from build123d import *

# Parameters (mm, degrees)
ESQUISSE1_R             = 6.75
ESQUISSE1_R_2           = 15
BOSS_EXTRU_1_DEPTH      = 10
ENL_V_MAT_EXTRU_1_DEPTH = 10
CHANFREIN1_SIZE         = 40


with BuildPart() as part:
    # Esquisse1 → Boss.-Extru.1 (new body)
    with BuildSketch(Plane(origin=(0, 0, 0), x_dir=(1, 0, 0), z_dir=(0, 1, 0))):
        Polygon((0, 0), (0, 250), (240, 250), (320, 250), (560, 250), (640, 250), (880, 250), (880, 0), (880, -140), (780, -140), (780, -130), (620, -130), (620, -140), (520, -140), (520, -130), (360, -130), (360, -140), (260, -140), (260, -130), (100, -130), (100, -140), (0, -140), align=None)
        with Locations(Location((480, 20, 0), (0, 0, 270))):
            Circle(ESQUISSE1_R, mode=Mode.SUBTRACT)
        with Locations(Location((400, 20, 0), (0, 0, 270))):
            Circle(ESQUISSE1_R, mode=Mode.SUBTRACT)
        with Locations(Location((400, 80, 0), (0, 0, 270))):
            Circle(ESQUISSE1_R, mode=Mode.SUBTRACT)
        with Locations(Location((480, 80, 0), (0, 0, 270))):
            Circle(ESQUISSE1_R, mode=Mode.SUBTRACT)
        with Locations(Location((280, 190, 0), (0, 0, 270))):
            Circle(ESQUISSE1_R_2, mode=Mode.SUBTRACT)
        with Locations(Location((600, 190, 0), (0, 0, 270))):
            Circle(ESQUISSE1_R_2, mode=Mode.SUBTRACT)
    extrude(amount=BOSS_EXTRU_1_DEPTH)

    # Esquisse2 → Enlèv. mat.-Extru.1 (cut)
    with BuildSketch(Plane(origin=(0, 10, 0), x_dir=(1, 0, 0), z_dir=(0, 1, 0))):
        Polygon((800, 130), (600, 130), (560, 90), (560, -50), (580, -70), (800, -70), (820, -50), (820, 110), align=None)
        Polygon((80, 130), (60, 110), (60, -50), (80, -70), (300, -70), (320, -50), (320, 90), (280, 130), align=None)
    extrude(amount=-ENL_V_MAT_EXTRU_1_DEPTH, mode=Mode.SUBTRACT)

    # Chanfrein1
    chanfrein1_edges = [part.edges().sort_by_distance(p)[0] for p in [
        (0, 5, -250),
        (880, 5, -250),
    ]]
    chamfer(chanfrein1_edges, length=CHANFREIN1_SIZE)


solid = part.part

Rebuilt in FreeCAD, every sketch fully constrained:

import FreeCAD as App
import Part
import Sketcher


def edges_at(feature, points):
    """Names of the edges that pass closest to the given points."""
    edges = feature.Shape.Edges
    near = lambda p: min(range(len(edges)), key=lambda i: edges[i].distToShape(Part.Vertex(*p))[0])
    return sorted({f"Edge{near(p) + 1}" for p in points})


def add_polygon(sketch, points):
    """Adds a closed chain of lines whose ends are joined by coincident constraints."""
    first, n = sketch.GeometryCount, len(points)
    for a, b in zip(points, points[1:] + points[:1]):
        sketch.addGeometry(Part.LineSegment(App.Vector(*a, 0), App.Vector(*b, 0)), False)
    for i in range(n):
        sketch.addConstraint(Sketcher.Constraint("Coincident", first + i, 2, first + (i + 1) % n, 1))

doc = App.newDocument("Part")
body = doc.addObject("PartDesign::Body", "Body")

# Sketch on XZ plane
sketch1 = body.newObject("Sketcher::SketchObject", "Sketch")
sketch1.AttachmentSupport = (doc.getObject("XZ_Plane"), [""])
sketch1.MapMode = "FlatFace"
add_polygon(sketch1, [(0, -250), (0, 140), (100, 140), (100, 130), (260, 130), (260, 140), (360, 140), (360, 130), (520, 130), (520, 140), (620, 140), (620, 130), (780, 130), (780, 140), (880, 140), (880, -250)])  # lines 0-15
sketch1.addGeometry(Part.Circle(App.Vector(480, -20, 0), App.Vector(0, 0, 1), 7), False)  # 16
sketch1.addGeometry(Part.Circle(App.Vector(480, -80, 0), App.Vector(0, 0, 1), 7), False)  # 17
sketch1.addGeometry(Part.Circle(App.Vector(400, -20, 0), App.Vector(0, 0, 1), 7), False)  # 18
sketch1.addGeometry(Part.Circle(App.Vector(400, -80, 0), App.Vector(0, 0, 1), 7), False)  # 19
sketch1.addGeometry(Part.Circle(App.Vector(600, -190, 0), App.Vector(0, 0, 1), 15), False)  # 20
sketch1.addGeometry(Part.Circle(App.Vector(280, -190, 0), App.Vector(0, 0, 1), 15), False)  # 21
sketch1.addConstraint([
    Sketcher.Constraint("Vertical", 0),
    Sketcher.Constraint("Horizontal", 1),
    Sketcher.Constraint("Vertical", 2),
    Sketcher.Constraint("Horizontal", 3),
    Sketcher.Constraint("Vertical", 4),
    Sketcher.Constraint("Horizontal", 5),
    Sketcher.Constraint("Vertical", 6),
    Sketcher.Constraint("Horizontal", 7),
    Sketcher.Constraint("Vertical", 8),
    Sketcher.Constraint("Horizontal", 9),
    Sketcher.Constraint("Vertical", 10),
    Sketcher.Constraint("Horizontal", 11),
    Sketcher.Constraint("Vertical", 12),
    Sketcher.Constraint("Horizontal", 13),
    Sketcher.Constraint("Vertical", 14),
    Sketcher.Constraint("Horizontal", 15),
    Sketcher.Constraint("Equal", 16, 17),
    Sketcher.Constraint("Equal", 17, 18),
    Sketcher.Constraint("Equal", 18, 19),
    Sketcher.Constraint("Equal", 20, 21),
    Sketcher.Constraint("PointOnObject", 0, 2, -2),
    Sketcher.Constraint("Horizontal", 16, 3, 18, 3),
    Sketcher.Constraint("Horizontal", 17, 3, 19, 3),
    Sketcher.Constraint("Horizontal", 20, 3, 21, 3),
    Sketcher.Constraint("Horizontal", 1, 2, 4, 2),
    Sketcher.Constraint("Horizontal", 3, 2, 6, 2),
    Sketcher.Constraint("Horizontal", 5, 2, 8, 2),
    Sketcher.Constraint("Horizontal", 7, 2, 10, 2),
    Sketcher.Constraint("Horizontal", 9, 2, 12, 2),
    Sketcher.Constraint("Vertical", 16, 3, 17, 3),
    Sketcher.Constraint("Vertical", 18, 3, 19, 3),
    Sketcher.Constraint("Equal", 1, 5),
    Sketcher.Constraint("Equal", 3, 7),
    Sketcher.Constraint("Equal", 5, 9),
    Sketcher.Constraint("Equal", 7, 11),
    Sketcher.Constraint("Equal", 9, 13),
    Sketcher.Constraint("Diameter", 20, 30.0),
    Sketcher.Constraint("Diameter", 16, 13.5),
    Sketcher.Constraint("DistanceX", 1, 1, 1, 2, 100.0),
    Sketcher.Constraint("DistanceX", 3, 1, 3, 2, 160.0),
    Sketcher.Constraint("DistanceY", 0, 1, 0, 2, 390.0),
    Sketcher.Constraint("DistanceY", 2, 2, 2, 1, 10.0),
    Sketcher.Constraint("DistanceX", -1, 1, 16, 3, 480.0),
    Sketcher.Constraint("DistanceY", 16, 3, -1, 1, 20.0),
    Sketcher.Constraint("DistanceY", 17, 3, -1, 1, 80.0),
    Sketcher.Constraint("DistanceX", -1, 1, 18, 3, 400.0),
    Sketcher.Constraint("DistanceX", -1, 1, 20, 3, 600.0),
    Sketcher.Constraint("DistanceY", 20, 3, -1, 1, 190.0),
    Sketcher.Constraint("DistanceX", -1, 1, 21, 3, 280.0),
    Sketcher.Constraint("DistanceY", -1, 1, 0, 2, 140.0),
])
pad1 = body.newObject("PartDesign::Pad", "Pad")
pad1.Profile = sketch1
pad1.Length = 10
pad1.Reversed = True

# Sketch on XZ plane
sketch2 = body.newObject("Sketcher::SketchObject", "Sketch001")
sketch2.AttachmentSupport = (doc.getObject("XZ_Plane"), [""])
sketch2.MapMode = "FlatFace"
sketch2.AttachmentOffset = App.Placement(App.Vector(0, 0, -10), App.Rotation())
add_polygon(sketch2, [(800, -130), (600, -130), (560, -90), (560, 50), (580, 70), (800, 70), (820, 50), (820, -110)])  # lines 0-7
add_polygon(sketch2, [(80, -130), (60, -110), (60, 50), (80, 70), (300, 70), (320, 50), (320, -90), (280, -130)])  # lines 8-15
sketch2.addConstraint([
    Sketcher.Constraint("Horizontal", 0),
    Sketcher.Constraint("Vertical", 2),
    Sketcher.Constraint("Horizontal", 4),
    Sketcher.Constraint("Vertical", 6),
    Sketcher.Constraint("Vertical", 9),
    Sketcher.Constraint("Horizontal", 11),
    Sketcher.Constraint("Vertical", 13),
    Sketcher.Constraint("Horizontal", 15),
    Sketcher.Constraint("Perpendicular", 1, 3),
    Sketcher.Constraint("Perpendicular", 3, 5),
    Sketcher.Constraint("Perpendicular", 5, 7),
    Sketcher.Constraint("Perpendicular", 7, 8),
    Sketcher.Constraint("Perpendicular", 8, 10),
    Sketcher.Constraint("Perpendicular", 10, 12),
    Sketcher.Constraint("Perpendicular", 12, 14),
    Sketcher.Constraint("Horizontal", 2, 2, 5, 2),
    Sketcher.Constraint("Horizontal", 6, 2, 8, 2),
    Sketcher.Constraint("Horizontal", 5, 2, 9, 2),
    Sketcher.Constraint("Horizontal", 4, 2, 10, 2),
    Sketcher.Constraint("Horizontal", 9, 2, 12, 2),
    Sketcher.Constraint("Horizontal", 1, 2, 13, 2),
    Sketcher.Constraint("Horizontal", 7, 2, 14, 2),
    Sketcher.Constraint("Vertical", 4, 2, 7, 2),
    Sketcher.Constraint("Vertical", 10, 2, 15, 2),
    Sketcher.Constraint("Equal", 4, 11),
    Sketcher.Constraint("DistanceX", 0, 2, 0, 1, 200.0),
    Sketcher.Constraint("DistanceX", 4, 1, 4, 2, 220.0),
    Sketcher.Constraint("DistanceY", 2, 1, 2, 2, 140.0),
    Sketcher.Constraint("DistanceX", -1, 1, 0, 2, 600.0),
    Sketcher.Constraint("DistanceY", 0, 2, -1, 1, 130.0),
    Sketcher.Constraint("DistanceX", -1, 1, 1, 2, 560.0),
    Sketcher.Constraint("DistanceX", -1, 1, 8, 2, 60.0),
])
pocket1 = body.newObject("PartDesign::Pocket", "Pocket")
pocket1.Profile = sketch2
pocket1.Length = 10
pocket1.Reversed = True
doc.recompute()

chamfer = body.newObject("PartDesign::Chamfer", "Chamfer")
chamfer.Base = (pocket1, edges_at(pocket1, [(0, 5, -250), (880, 5, -250)]))
chamfer.Size = 40

doc.recompute()
